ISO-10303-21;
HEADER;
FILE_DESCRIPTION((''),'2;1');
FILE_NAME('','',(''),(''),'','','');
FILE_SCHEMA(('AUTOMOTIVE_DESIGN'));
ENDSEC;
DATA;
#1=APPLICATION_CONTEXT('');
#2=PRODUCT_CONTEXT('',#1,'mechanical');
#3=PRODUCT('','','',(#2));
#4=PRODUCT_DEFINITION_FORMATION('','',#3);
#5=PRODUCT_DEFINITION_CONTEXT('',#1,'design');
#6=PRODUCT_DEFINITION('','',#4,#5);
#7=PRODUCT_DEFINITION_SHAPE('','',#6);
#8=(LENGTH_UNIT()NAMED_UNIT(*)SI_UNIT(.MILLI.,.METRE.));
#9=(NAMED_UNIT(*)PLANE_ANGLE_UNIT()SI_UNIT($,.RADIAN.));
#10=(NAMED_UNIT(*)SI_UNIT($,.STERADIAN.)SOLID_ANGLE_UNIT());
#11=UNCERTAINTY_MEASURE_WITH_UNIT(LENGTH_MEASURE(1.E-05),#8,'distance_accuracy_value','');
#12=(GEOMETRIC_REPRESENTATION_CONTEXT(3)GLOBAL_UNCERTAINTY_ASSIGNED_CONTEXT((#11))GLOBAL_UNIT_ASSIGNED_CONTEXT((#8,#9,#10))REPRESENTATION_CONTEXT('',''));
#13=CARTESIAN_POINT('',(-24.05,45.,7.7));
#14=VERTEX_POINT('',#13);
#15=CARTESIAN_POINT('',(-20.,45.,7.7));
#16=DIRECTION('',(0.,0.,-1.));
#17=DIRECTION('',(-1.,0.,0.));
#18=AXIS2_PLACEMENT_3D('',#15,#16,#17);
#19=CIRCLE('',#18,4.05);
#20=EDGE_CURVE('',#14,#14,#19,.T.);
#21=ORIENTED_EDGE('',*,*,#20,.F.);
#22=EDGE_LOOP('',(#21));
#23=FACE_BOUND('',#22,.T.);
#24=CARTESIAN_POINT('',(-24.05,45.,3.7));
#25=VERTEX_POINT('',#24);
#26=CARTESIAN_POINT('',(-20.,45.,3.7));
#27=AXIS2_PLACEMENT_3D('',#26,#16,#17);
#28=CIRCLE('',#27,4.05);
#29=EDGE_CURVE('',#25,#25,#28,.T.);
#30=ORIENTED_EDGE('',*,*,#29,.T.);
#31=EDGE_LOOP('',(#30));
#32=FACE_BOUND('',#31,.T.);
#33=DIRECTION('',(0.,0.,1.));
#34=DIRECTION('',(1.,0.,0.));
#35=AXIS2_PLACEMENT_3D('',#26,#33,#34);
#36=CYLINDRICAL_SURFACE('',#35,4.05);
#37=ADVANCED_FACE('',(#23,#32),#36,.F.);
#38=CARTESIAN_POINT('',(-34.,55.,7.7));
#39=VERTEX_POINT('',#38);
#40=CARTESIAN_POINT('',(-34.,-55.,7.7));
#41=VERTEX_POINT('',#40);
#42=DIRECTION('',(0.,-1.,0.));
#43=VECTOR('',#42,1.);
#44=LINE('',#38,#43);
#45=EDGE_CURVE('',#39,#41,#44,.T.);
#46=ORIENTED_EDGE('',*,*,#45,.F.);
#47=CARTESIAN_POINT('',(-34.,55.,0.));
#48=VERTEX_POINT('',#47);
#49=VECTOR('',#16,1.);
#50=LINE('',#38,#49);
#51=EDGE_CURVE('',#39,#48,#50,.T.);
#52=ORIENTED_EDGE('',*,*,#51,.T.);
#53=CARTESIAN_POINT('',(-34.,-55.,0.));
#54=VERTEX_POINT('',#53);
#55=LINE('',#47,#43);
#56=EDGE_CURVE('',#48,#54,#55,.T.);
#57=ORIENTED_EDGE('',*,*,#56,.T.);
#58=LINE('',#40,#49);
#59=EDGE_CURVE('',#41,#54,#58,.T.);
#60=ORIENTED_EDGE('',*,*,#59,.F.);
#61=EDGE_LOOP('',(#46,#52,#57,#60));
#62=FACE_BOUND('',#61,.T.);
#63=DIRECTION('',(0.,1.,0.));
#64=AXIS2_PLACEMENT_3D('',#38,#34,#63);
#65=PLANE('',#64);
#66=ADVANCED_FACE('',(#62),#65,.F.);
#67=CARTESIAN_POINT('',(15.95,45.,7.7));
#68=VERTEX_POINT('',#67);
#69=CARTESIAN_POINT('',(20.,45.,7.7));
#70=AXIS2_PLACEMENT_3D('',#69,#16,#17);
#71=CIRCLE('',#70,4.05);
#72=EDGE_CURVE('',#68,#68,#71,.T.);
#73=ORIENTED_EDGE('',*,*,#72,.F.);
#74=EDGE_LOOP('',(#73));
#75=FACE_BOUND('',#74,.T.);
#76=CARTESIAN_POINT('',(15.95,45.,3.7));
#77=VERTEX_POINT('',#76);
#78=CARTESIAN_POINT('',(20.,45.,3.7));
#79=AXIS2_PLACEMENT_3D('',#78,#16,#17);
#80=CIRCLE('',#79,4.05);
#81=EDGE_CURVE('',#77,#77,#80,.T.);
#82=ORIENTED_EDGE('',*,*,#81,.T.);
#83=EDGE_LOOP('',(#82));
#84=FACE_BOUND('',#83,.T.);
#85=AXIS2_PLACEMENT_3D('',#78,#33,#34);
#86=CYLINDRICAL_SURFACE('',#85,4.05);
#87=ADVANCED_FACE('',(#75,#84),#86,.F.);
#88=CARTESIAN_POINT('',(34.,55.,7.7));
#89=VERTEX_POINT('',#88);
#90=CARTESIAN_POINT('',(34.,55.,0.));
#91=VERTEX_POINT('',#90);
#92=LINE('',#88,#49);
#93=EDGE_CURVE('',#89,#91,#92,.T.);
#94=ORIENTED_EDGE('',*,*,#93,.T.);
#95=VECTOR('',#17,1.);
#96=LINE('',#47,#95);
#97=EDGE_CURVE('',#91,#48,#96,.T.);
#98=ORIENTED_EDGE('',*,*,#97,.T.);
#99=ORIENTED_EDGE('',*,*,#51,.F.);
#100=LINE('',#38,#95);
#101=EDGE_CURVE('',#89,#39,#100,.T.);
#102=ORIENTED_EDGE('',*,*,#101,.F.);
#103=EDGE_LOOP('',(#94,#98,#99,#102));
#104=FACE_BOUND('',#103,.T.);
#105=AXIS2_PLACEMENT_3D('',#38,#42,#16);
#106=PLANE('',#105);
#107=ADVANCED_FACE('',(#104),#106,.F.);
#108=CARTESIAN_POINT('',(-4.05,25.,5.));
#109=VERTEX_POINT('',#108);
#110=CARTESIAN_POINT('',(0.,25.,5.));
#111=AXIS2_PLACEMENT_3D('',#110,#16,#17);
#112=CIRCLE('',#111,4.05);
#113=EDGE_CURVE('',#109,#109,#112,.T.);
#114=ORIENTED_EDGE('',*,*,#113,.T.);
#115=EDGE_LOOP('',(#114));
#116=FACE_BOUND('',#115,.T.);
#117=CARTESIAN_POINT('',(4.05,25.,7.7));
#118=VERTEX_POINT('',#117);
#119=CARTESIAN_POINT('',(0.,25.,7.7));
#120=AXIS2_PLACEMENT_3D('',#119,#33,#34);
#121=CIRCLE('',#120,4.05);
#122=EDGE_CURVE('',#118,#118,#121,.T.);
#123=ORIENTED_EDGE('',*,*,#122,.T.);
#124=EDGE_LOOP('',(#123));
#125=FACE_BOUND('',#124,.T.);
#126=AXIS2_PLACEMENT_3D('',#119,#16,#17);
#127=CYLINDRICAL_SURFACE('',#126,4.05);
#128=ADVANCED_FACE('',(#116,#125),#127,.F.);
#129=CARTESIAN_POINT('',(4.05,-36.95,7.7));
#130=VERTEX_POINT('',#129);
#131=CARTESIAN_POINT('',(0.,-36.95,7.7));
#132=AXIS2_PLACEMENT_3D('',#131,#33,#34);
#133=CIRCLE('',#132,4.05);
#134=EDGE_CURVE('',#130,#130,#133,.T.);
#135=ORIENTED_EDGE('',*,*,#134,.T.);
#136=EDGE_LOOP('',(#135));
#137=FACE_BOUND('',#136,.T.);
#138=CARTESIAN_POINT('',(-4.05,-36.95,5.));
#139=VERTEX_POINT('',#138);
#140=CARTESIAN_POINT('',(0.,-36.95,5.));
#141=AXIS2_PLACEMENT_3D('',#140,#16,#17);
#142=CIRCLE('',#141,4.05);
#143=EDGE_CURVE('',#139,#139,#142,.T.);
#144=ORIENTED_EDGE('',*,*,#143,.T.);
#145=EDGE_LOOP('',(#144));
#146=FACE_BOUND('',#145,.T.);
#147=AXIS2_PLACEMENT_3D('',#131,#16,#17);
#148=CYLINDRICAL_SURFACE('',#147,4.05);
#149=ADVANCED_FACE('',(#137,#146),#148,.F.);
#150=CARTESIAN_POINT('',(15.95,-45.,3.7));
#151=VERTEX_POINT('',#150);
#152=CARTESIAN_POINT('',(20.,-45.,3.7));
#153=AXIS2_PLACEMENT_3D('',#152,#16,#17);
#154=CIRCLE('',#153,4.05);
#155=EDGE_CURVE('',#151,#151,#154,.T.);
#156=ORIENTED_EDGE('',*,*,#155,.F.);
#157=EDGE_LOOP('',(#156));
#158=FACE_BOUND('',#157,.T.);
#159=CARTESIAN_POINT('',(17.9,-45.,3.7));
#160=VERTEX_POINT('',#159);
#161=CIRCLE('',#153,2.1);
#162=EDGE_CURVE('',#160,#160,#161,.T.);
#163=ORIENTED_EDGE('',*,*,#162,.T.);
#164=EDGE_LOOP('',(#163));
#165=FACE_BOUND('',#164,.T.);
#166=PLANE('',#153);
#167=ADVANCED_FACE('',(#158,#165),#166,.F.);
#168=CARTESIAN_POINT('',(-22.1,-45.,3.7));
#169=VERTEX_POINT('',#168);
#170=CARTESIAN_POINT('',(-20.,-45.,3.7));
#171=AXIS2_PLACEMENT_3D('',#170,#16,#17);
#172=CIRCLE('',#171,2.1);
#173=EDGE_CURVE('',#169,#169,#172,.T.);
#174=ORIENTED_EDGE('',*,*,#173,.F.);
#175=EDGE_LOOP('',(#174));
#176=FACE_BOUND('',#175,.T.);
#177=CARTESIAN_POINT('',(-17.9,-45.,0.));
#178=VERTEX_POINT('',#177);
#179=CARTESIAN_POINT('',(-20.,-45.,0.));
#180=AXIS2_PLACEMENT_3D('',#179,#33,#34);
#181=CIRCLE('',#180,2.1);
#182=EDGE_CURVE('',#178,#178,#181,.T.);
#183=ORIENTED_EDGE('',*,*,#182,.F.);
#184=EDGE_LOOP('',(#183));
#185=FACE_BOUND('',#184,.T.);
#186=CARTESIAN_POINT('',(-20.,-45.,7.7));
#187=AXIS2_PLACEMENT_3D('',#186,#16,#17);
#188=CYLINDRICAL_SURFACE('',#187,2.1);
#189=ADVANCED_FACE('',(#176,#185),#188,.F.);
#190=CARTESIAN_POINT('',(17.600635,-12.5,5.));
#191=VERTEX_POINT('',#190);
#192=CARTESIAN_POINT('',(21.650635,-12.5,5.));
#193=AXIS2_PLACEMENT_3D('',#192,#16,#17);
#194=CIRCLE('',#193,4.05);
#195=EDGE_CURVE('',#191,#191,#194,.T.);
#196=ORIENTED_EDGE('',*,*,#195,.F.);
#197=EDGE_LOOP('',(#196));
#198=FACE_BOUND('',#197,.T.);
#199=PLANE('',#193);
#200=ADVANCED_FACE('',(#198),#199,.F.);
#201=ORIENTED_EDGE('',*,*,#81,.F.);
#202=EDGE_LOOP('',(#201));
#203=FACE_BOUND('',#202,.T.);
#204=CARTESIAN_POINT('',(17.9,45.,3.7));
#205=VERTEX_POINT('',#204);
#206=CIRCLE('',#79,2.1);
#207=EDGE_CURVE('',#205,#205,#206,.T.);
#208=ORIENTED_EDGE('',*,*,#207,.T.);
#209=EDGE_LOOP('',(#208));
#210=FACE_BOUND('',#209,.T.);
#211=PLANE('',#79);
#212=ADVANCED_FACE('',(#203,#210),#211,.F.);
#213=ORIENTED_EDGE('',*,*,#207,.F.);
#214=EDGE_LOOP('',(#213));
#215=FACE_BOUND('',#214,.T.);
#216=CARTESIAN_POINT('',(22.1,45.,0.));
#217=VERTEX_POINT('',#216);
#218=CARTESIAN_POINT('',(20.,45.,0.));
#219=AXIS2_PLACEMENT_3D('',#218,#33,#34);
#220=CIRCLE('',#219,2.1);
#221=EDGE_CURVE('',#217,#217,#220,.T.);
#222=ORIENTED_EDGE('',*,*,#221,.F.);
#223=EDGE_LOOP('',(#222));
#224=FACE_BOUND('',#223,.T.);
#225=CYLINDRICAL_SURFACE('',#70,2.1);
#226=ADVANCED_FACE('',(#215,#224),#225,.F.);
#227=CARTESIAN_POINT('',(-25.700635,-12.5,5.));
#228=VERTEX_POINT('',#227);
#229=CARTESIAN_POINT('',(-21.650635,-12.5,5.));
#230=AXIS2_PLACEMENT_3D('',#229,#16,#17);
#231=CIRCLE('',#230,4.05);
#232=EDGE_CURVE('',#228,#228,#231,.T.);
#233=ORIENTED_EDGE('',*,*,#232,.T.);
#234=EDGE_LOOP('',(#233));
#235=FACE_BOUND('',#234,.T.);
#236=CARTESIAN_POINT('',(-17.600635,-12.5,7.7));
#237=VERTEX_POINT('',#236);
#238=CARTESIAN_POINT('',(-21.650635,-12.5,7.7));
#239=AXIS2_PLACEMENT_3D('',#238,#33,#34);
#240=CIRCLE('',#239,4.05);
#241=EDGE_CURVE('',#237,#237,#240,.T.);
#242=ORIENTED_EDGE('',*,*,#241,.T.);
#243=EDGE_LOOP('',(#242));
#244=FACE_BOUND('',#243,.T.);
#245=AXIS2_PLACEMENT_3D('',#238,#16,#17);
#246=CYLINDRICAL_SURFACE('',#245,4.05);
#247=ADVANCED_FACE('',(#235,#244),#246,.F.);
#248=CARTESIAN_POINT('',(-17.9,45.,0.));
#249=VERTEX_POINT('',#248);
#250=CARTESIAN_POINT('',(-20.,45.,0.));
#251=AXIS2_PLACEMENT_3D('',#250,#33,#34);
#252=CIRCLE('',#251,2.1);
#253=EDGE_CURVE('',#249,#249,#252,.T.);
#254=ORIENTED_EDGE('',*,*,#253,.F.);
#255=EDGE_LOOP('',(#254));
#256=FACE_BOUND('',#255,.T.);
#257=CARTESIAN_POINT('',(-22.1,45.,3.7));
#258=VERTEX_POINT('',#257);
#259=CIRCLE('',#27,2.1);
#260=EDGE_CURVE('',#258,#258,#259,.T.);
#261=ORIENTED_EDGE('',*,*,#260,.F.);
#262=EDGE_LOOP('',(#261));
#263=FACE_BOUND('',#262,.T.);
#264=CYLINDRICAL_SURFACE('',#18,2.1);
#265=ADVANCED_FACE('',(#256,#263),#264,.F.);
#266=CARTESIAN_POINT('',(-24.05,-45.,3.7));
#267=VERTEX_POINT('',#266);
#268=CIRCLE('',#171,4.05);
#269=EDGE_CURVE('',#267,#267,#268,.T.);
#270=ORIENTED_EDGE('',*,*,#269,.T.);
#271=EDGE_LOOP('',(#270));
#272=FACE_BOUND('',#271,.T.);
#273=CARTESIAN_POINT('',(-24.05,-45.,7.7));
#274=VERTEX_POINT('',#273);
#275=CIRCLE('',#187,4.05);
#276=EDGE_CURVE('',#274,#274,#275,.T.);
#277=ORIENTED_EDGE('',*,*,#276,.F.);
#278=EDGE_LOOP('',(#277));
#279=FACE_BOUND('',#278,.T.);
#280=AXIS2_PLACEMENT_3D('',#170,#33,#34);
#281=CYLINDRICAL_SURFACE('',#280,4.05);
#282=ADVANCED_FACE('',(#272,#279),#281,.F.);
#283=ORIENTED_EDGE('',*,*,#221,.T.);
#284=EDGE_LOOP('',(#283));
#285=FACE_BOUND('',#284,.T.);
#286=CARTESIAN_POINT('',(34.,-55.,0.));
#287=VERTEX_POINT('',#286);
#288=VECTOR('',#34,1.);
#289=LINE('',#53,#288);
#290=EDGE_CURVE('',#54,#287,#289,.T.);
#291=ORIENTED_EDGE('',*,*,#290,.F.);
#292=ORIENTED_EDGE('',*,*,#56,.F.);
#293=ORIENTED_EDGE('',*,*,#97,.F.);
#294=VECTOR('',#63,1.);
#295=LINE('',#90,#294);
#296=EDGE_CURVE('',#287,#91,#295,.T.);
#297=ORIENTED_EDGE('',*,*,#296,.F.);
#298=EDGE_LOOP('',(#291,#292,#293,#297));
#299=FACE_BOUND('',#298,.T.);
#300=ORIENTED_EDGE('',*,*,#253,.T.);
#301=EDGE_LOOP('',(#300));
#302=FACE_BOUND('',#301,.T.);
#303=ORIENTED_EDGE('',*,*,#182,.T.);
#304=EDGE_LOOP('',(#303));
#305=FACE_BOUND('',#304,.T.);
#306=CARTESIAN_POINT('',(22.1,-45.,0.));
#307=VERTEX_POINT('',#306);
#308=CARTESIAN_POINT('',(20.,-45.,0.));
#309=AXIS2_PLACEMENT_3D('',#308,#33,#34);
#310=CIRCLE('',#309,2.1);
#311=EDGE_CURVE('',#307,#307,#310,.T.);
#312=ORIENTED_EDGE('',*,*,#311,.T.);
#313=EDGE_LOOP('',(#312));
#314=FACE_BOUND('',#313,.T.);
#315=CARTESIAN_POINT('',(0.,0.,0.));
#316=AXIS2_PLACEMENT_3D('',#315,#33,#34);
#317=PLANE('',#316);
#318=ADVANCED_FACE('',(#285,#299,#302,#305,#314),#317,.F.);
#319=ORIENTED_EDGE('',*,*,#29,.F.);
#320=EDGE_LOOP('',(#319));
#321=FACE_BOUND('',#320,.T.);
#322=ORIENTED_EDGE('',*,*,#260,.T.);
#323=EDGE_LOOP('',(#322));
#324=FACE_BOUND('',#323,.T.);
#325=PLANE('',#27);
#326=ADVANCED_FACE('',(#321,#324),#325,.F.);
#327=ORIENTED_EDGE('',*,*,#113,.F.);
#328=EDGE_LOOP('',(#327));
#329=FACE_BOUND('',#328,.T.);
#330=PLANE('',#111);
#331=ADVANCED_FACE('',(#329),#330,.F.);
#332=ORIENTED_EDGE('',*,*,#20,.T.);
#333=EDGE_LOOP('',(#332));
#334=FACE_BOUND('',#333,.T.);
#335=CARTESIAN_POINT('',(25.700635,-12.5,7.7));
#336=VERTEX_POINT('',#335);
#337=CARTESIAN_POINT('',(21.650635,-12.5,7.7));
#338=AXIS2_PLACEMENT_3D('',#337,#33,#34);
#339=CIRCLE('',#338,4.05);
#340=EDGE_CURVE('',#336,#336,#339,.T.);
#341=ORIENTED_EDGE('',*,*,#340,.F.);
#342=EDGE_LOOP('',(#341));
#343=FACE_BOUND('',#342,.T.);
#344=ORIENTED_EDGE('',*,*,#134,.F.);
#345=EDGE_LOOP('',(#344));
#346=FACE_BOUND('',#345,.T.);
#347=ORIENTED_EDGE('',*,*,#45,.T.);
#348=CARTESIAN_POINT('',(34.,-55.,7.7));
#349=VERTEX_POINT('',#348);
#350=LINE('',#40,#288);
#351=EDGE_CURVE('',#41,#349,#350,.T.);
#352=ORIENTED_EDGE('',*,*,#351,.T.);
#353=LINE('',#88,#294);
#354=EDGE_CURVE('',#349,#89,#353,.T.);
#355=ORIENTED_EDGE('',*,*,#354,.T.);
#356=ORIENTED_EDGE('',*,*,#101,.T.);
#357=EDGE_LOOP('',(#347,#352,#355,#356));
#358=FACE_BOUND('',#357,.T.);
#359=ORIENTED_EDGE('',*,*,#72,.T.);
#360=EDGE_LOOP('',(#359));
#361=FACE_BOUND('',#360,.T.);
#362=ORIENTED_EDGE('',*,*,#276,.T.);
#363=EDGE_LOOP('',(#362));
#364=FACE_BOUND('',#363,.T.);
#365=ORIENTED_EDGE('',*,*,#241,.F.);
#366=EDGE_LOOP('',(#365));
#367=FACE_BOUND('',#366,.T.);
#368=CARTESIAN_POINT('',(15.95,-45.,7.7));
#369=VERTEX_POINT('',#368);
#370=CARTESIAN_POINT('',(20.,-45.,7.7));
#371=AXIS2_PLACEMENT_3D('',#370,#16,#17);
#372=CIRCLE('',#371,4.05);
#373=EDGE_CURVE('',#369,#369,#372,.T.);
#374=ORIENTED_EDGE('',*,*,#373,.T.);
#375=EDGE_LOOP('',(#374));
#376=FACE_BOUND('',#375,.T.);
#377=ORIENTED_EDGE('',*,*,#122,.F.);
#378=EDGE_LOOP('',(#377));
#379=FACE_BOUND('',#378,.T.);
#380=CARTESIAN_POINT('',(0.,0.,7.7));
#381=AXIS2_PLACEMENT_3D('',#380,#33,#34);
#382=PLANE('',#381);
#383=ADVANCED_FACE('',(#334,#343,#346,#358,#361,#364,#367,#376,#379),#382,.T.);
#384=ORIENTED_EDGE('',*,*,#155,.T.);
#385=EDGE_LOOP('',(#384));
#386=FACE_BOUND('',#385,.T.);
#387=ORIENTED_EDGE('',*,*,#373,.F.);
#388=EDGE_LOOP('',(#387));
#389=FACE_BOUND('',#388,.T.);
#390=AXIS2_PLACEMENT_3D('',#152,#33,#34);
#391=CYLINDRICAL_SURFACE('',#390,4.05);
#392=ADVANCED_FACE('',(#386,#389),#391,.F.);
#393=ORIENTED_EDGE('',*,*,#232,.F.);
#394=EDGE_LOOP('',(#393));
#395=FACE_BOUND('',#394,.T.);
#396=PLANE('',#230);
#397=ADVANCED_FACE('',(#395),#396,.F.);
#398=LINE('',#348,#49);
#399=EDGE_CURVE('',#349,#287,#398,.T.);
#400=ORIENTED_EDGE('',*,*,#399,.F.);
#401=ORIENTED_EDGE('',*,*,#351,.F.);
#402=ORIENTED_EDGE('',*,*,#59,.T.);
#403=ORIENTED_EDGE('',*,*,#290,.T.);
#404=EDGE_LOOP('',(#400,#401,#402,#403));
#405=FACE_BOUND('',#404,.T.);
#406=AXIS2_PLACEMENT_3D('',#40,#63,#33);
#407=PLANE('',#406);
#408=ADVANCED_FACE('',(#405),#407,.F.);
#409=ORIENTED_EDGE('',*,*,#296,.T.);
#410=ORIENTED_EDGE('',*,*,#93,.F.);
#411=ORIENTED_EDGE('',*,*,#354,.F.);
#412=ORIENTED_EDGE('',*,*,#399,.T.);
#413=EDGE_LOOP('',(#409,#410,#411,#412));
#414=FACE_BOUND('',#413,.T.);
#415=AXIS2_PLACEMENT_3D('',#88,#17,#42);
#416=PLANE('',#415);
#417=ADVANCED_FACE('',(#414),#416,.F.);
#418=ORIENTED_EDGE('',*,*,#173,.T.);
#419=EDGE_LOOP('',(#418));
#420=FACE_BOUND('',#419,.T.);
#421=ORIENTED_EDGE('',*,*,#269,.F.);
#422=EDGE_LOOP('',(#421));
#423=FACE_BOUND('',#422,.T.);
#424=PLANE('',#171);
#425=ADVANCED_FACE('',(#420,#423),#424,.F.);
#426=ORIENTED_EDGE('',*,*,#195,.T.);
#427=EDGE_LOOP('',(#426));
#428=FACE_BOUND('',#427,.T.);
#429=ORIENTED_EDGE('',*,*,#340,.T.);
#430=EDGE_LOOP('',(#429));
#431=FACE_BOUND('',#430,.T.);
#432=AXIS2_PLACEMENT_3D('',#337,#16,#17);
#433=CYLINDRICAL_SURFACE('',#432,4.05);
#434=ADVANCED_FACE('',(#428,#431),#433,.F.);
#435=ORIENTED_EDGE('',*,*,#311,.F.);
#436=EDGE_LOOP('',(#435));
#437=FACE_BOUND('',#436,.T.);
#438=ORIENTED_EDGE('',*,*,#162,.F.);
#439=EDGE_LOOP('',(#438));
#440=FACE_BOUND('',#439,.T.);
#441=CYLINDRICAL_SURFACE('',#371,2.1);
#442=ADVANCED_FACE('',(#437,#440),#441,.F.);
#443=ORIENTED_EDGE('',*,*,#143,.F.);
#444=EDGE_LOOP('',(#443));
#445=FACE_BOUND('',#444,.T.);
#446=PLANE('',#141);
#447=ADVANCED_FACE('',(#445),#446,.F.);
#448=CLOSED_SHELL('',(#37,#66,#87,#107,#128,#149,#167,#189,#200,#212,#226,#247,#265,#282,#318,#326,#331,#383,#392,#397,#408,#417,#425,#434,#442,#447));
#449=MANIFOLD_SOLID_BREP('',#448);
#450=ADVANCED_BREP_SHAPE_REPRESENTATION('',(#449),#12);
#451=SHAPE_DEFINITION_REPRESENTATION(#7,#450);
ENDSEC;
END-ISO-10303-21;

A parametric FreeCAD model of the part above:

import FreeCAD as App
import Part
import Sketcher

doc = App.newDocument("Part")
body = doc.addObject("PartDesign::Body", "Body")

# Sketch on XY plane
sketch1 = body.newObject("Sketcher::SketchObject", "Sketch")
sketch1.AttachmentSupport = (doc.getObject("XY_Plane"), [""])
sketch1.MapMode = "FlatFace"
sketch1.addGeometry([
    Part.LineSegment(App.Vector(-34, 55, 0), App.Vector(-34, -55, 0)),  # 0
    Part.LineSegment(App.Vector(-34, -55, 0), App.Vector(34, -55, 0)),  # 1
    Part.LineSegment(App.Vector(34, -55, 0), App.Vector(34, 55, 0)),  # 2
    Part.LineSegment(App.Vector(34, 55, 0), App.Vector(-34, 55, 0)),  # 3
    Part.Circle(App.Vector(-20, -45, 0), App.Vector(0, 0, 1), 2.1),  # 4
    Part.Circle(App.Vector(-21.650635, -12.5, 0), App.Vector(0, 0, 1), 4.05),  # 5
    Part.Circle(App.Vector(0, -36.95, 0), App.Vector(0, 0, 1), 4.05),  # 6
    Part.Circle(App.Vector(20, -45, 0), App.Vector(0, 0, 1), 2.1),  # 7
    Part.Circle(App.Vector(21.650635, -12.5, 0), App.Vector(0, 0, 1), 4.05),  # 8
    Part.Circle(App.Vector(-20, 45, 0), App.Vector(0, 0, 1), 2.1),  # 9
    Part.Circle(App.Vector(0, 25, 0), App.Vector(0, 0, 1), 4.05),  # 10
    Part.Circle(App.Vector(20, 45, 0), App.Vector(0, 0, 1), 2.1),  # 11
], False)
sketch1.addConstraint([
    Sketcher.Constraint("Coincident", 0, 2, 1, 1),
    Sketcher.Constraint("Coincident", 1, 2, 2, 1),
    Sketcher.Constraint("Coincident", 2, 2, 3, 1),
    Sketcher.Constraint("Coincident", 3, 2, 0, 1),
    Sketcher.Constraint("Vertical", 0),
    Sketcher.Constraint("Horizontal", 1),
    Sketcher.Constraint("Vertical", 2),
    Sketcher.Constraint("Horizontal", 3),
    Sketcher.Constraint("Equal", 5, 6),
    Sketcher.Constraint("Equal", 4, 7),
    Sketcher.Constraint("Equal", 6, 8),
    Sketcher.Constraint("Equal", 7, 9),
    Sketcher.Constraint("Equal", 8, 10),
    Sketcher.Constraint("Equal", 9, 11),
    Sketcher.Constraint("Symmetric", 7, 3, 9, 3, -1, 1),
    Sketcher.Constraint("Symmetric", 4, 3, 11, 3, -1, 1),
    Sketcher.Constraint("Symmetric", 0, 2, 2, 2, -1, 1),
    Sketcher.Constraint("Symmetric", 4, 3, 7, 3, -2),
    Sketcher.Constraint("Symmetric", 5, 3, 8, 3, -2),
    Sketcher.Constraint("PointOnObject", 6, 3, -2),
    Sketcher.Constraint("PointOnObject", 10, 3, -2),
    Sketcher.Constraint("Diameter", 4, 4.2),
    Sketcher.Constraint("Diameter", 5, 8.1),
    Sketcher.Constraint("DistanceX", 1, 1, 1, 2, 68.0),
    Sketcher.Constraint("DistanceY", 0, 2, 0, 1, 110.0),
    Sketcher.Constraint("DistanceX", 4, 3, -1, 1, 20.0),
    Sketcher.Constraint("DistanceY", 4, 3, -1, 1, 45.0),
    Sketcher.Constraint("DistanceY", -1, 1, 10, 3, 25.0),
    Sketcher.Constraint("DistanceY", 5, 3, -1, 1, 12.5),
    Sketcher.Constraint("DistanceY", 6, 3, -1, 1, 36.95),
    Sketcher.Constraint("DistanceX", 5, 3, 8, 3, 43.30127),
])
pad1 = body.newObject("PartDesign::Pad", "Pad")
pad1.Profile = sketch1
pad1.Length = 7.7

# Sketch on XY plane
sketch2 = body.newObject("Sketcher::SketchObject", "Sketch001")
sketch2.AttachmentSupport = (doc.getObject("XY_Plane"), [""])
sketch2.MapMode = "FlatFace"
sketch2.addGeometry([
    Part.Circle(App.Vector(21.650635, -12.5, 0), App.Vector(0, 0, 1), 6.304633),
    Part.Circle(App.Vector(0, 25, 0), App.Vector(0, 0, 1), 7.334333),
    Part.Circle(App.Vector(-21.650635, -12.5, 0), App.Vector(0, 0, 1), 8.114041),
    Part.Circle(App.Vector(0, -36.95, 0), App.Vector(0, 0, 1), 11.073656),
], False)
sketch2.addConstraint([
    Sketcher.Constraint("Symmetric", 0, 3, 2, 3, -2),
    Sketcher.Constraint("PointOnObject", 1, 3, -2),
    Sketcher.Constraint("PointOnObject", 3, 3, -2),
    Sketcher.Constraint("DistanceY", -1, 1, 1, 3, 25.0),
    Sketcher.Constraint("DistanceY", 0, 3, -1, 1, 12.5),
    Sketcher.Constraint("Diameter", 2, 16.228082),
    Sketcher.Constraint("DistanceY", 3, 3, -1, 1, 36.95),
    Sketcher.Constraint("Diameter", 0, 12.609266),
    Sketcher.Constraint("Diameter", 1, 14.668667),
    Sketcher.Constraint("Diameter", 3, 22.147313),
    Sketcher.Constraint("DistanceX", 2, 3, 0, 3, 43.30127),
])
pad2 = body.newObject("PartDesign::Pad", "Pad001")
pad2.Profile = sketch2
pad2.Length = 5

# Sketch on XY plane
sketch3 = body.newObject("Sketcher::SketchObject", "Sketch002")
sketch3.AttachmentSupport = (doc.getObject("XY_Plane"), [""])
sketch3.MapMode = "FlatFace"
sketch3.AttachmentOffset = App.Placement(App.Vector(0, 0, 7.7), App.Rotation())
sketch3.addGeometry([
    Part.Circle(App.Vector(20, 45, 0), App.Vector(0, 0, 1), 4.05),
    Part.Circle(App.Vector(-20, 45, 0), App.Vector(0, 0, 1), 4.05),
    Part.Circle(App.Vector(20, -45, 0), App.Vector(0, 0, 1), 4.05),
    Part.Circle(App.Vector(-20, -45, 0), App.Vector(0, 0, 1), 4.05),
], False)
sketch3.addConstraint([
    Sketcher.Constraint("Equal", 0, 1),
    Sketcher.Constraint("Equal", 1, 2),
    Sketcher.Constraint("Equal", 2, 3),
    Sketcher.Constraint("Symmetric", 1, 3, 2, 3, -1, 1),
    Sketcher.Constraint("Symmetric", 0, 3, 3, 3, -1, 1),
    Sketcher.Constraint("Symmetric", 0, 3, 1, 3, -2),
    Sketcher.Constraint("Diameter", 0, 8.1),
    Sketcher.Constraint("DistanceX", -1, 1, 0, 3, 20.0),
    Sketcher.Constraint("DistanceY", -1, 1, 0, 3, 45.0),
])
pocket1 = body.newObject("PartDesign::Pocket", "Pocket")
pocket1.Profile = sketch3
pocket1.Length = 4

doc.recompute()
